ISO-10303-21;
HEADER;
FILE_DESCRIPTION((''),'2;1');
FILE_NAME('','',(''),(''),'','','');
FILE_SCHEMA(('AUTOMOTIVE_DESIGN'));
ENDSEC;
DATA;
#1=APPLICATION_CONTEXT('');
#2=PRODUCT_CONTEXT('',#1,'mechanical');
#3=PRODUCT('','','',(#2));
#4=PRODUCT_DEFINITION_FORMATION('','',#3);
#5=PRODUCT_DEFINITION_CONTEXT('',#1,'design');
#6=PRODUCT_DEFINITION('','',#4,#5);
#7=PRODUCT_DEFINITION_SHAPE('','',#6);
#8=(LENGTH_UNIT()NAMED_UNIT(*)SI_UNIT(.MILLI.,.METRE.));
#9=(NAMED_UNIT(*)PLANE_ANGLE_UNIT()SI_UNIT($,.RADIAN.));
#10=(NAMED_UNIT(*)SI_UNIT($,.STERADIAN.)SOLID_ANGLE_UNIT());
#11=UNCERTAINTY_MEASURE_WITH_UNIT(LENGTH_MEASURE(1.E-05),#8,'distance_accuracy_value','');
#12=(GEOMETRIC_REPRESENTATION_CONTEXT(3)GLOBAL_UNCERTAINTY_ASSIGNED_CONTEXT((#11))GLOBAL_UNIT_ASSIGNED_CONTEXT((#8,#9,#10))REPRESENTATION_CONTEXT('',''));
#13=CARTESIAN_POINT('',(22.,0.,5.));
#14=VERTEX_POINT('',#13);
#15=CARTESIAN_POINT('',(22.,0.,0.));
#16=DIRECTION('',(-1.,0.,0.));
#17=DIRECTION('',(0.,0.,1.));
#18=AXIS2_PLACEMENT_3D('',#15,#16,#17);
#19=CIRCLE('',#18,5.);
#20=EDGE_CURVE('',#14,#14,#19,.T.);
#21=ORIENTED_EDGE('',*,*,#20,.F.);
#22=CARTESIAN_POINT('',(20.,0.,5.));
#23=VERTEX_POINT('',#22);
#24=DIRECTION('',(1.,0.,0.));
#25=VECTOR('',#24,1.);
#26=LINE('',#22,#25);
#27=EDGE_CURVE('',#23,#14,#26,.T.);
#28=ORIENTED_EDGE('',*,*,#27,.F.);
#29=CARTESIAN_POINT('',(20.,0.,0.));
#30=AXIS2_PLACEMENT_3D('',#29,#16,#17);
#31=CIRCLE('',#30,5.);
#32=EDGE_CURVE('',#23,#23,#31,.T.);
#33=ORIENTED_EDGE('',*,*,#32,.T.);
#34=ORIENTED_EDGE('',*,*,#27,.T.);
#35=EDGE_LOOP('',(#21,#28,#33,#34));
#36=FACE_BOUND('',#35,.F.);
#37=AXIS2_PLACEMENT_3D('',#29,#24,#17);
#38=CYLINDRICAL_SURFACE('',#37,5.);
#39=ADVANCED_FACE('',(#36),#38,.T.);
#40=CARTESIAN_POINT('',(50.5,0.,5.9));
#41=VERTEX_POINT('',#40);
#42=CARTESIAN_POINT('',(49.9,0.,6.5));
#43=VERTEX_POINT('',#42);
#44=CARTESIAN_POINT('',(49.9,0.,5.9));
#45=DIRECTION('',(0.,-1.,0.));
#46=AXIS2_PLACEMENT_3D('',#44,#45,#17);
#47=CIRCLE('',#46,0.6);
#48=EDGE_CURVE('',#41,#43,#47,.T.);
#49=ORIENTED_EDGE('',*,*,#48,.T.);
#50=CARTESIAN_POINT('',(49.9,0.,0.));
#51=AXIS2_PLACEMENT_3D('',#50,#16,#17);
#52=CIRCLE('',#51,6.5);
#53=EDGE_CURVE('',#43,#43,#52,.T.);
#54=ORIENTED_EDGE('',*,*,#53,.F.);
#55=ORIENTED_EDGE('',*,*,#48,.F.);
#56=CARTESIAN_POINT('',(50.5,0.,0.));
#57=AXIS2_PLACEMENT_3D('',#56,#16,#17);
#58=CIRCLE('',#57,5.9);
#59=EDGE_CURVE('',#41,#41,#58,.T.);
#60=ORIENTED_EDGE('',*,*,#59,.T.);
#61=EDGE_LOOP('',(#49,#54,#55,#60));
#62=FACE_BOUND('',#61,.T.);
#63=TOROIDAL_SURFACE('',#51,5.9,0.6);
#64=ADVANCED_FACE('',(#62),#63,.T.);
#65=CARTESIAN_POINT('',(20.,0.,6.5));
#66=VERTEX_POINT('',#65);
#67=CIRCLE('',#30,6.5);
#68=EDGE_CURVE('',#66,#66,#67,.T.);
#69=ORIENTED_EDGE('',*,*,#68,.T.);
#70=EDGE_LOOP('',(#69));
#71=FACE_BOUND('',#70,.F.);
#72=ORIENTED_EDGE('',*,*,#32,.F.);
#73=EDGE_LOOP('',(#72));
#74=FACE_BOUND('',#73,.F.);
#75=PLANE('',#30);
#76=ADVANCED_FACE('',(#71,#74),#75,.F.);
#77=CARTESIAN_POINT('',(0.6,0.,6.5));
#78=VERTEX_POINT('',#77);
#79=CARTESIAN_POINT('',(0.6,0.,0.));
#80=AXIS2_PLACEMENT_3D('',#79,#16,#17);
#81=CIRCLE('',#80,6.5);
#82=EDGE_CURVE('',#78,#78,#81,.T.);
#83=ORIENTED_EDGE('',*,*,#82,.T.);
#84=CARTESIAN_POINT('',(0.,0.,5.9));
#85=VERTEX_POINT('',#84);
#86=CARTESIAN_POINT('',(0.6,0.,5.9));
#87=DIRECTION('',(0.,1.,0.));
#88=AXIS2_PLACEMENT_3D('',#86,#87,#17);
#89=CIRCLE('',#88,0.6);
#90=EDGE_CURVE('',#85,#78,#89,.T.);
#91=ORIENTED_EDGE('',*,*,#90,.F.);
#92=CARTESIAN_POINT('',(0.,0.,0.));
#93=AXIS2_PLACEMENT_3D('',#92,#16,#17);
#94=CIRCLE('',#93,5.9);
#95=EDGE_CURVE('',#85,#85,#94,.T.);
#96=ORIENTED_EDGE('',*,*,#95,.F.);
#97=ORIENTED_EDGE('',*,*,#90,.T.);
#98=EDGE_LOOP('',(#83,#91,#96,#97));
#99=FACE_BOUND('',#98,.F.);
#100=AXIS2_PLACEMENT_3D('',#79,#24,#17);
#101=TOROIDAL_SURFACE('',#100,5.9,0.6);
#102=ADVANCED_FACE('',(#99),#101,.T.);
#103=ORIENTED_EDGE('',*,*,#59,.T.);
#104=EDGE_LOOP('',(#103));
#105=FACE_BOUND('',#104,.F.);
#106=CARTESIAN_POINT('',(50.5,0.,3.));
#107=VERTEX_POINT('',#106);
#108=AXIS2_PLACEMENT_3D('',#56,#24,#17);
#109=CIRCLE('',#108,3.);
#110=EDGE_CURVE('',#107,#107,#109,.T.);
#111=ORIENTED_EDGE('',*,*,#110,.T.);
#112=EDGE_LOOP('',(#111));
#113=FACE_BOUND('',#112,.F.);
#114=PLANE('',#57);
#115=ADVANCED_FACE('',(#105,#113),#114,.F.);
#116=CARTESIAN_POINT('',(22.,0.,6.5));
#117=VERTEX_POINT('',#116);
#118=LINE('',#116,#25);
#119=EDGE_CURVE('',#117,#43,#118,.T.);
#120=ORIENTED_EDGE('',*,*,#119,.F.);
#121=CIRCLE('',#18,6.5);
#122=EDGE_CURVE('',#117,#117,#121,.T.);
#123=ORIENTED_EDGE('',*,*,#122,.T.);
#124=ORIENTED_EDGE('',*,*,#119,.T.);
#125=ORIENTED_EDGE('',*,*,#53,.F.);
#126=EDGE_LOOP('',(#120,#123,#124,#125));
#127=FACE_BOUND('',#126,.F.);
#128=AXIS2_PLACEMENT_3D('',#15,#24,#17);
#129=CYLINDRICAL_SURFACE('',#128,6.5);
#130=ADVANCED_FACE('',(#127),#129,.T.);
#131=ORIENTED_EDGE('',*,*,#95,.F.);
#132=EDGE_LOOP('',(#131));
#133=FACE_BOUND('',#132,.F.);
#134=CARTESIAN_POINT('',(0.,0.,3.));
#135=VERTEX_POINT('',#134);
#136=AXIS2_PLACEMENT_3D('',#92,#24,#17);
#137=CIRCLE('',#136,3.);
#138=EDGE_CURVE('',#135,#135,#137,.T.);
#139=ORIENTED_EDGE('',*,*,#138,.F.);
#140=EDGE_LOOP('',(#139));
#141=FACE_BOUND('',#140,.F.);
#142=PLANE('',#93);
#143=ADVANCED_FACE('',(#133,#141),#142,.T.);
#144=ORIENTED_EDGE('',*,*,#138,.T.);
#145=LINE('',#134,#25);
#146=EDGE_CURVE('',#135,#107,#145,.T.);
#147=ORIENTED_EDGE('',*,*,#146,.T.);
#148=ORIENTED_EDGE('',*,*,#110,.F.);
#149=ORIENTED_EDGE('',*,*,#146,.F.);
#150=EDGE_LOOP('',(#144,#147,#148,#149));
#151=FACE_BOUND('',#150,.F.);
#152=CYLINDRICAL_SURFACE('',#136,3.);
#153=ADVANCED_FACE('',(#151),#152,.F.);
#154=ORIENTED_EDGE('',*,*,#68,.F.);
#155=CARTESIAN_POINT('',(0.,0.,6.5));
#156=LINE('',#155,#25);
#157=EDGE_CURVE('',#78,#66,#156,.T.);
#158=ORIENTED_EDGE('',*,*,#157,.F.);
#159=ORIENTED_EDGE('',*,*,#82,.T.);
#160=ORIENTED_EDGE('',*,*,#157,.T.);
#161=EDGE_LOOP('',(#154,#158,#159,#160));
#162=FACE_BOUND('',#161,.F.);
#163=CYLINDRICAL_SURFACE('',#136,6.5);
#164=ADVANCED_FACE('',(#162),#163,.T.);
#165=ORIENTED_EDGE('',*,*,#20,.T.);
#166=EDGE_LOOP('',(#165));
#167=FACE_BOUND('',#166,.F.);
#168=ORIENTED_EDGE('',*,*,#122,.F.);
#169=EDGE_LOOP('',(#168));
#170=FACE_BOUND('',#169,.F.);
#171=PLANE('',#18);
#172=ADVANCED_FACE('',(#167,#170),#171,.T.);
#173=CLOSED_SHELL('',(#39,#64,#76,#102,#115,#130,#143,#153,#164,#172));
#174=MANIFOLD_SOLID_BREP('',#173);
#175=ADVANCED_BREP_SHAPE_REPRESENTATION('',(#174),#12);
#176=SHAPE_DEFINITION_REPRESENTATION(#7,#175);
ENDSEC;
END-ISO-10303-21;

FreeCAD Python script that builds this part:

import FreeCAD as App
import Part
import Sketcher


def edges_at(feature, points):
    """Names of the edges that pass closest to the given points."""
    edges = feature.Shape.Edges
    near = lambda p: min(range(len(edges)), key=lambda i: edges[i].distToShape(Part.Vertex(*p))[0])
    return sorted({f"Edge{near(p) + 1}" for p in points})

doc = App.newDocument("Part")
body = doc.addObject("PartDesign::Body", "Body")

sketch1 = doc.addObject("Sketcher::SketchObject", "Sketch")
body.addObject(sketch1)
sketch1.AttachmentSupport = (doc.XZ_Plane, [""])
sketch1.MapMode = "FlatFace"
sketch1.addGeometry([
    Part.LineSegment(App.Vector(50.5, 0, 0), App.Vector(0, 0, 0)),
    Part.LineSegment(App.Vector(0, 0, 0), App.Vector(0, 6.5, 0)),
    Part.LineSegment(App.Vector(0, 6.5, 0), App.Vector(20, 6.5, 0)),
    Part.LineSegment(App.Vector(20, 6.5, 0), App.Vector(20, 5, 0)),
    Part.LineSegment(App.Vector(20, 5, 0), App.Vector(22, 5, 0)),
    Part.LineSegment(App.Vector(22, 5, 0), App.Vector(22, 6.5, 0)),
    Part.LineSegment(App.Vector(22, 6.5, 0), App.Vector(50.5, 6.5, 0)),
    Part.LineSegment(App.Vector(50.5, 6.5, 0), App.Vector(50.5, 0, 0)),
], False)
sketch1.addConstraint([
    Sketcher.Constraint("Coincident", 0, 2, 1, 1),
    Sketcher.Constraint("Coincident", 1, 2, 2, 1),
    Sketcher.Constraint("Coincident", 2, 2, 3, 1),
    Sketcher.Constraint("Coincident", 3, 2, 4, 1),
    Sketcher.Constraint("Coincident", 4, 2, 5, 1),
    Sketcher.Constraint("Coincident", 5, 2, 6, 1),
    Sketcher.Constraint("Coincident", 6, 2, 7, 1),
    Sketcher.Constraint("Coincident", 7, 2, 0, 1),
    Sketcher.Constraint("Horizontal", 0),
    Sketcher.Constraint("Vertical", 1),
    Sketcher.Constraint("Horizontal", 2),
    Sketcher.Constraint("Vertical", 3),
    Sketcher.Constraint("Horizontal", 4),
    Sketcher.Constraint("Vertical", 5),
    Sketcher.Constraint("Horizontal", 6),
    Sketcher.Constraint("Vertical", 7),
    Sketcher.Constraint("Coincident", 0, 2, -1, 1),
    Sketcher.Constraint("Horizontal", 2, 2, 5, 2),
    Sketcher.Constraint("DistanceX", 2, 1, 2, 2, 20.0),
    Sketcher.Constraint("DistanceX", 4, 1, 4, 2, 2.0),
    Sketcher.Constraint("DistanceX", 6, 1, 6, 2, 28.5),
    Sketcher.Constraint("DistanceY", 1, 1, 1, 2, 6.5),
    Sketcher.Constraint("DistanceY", 3, 2, 3, 1, 1.5),
])
revolution = doc.addObject("PartDesign::Revolution", "Revolution")
body.addObject(revolution)
revolution.Profile = sketch1
revolution.ReferenceAxis = (sketch1, ["H_Axis"])
revolution.Angle = 360

sketch2 = doc.addObject("Sketcher::SketchObject", "Sketch001")
body.addObject(sketch2)
sketch2.AttachmentSupport = (doc.YZ_Plane, [""])
sketch2.MapMode = "FlatFace"
sketch2.addGeometry(Part.Circle(App.Vector(0, 0, 0), App.Vector(0, 0, 1), 3), False)
sketch2.addConstraint([
    Sketcher.Constraint("Coincident", 0, 3, -1, 1),
    Sketcher.Constraint("Diameter", 0, 6.0),
])
doc.recompute()
hole = doc.addObject("PartDesign::Hole", "Hole")
body.addObject(hole)
hole.Profile = sketch2
hole.ThreadType = "None"
hole.Diameter = 6
hole.DepthType = "ThroughAll"
hole.Reversed = True
doc.recompute()

fillet = doc.addObject("PartDesign::Fillet", "Fillet")
body.addObject(fillet)
fillet.Base = (hole, edges_at(hole, [(0, 0, -6.5), (50.5, 0, -6.5)]))
fillet.Radius = 0.6

doc.recompute()
